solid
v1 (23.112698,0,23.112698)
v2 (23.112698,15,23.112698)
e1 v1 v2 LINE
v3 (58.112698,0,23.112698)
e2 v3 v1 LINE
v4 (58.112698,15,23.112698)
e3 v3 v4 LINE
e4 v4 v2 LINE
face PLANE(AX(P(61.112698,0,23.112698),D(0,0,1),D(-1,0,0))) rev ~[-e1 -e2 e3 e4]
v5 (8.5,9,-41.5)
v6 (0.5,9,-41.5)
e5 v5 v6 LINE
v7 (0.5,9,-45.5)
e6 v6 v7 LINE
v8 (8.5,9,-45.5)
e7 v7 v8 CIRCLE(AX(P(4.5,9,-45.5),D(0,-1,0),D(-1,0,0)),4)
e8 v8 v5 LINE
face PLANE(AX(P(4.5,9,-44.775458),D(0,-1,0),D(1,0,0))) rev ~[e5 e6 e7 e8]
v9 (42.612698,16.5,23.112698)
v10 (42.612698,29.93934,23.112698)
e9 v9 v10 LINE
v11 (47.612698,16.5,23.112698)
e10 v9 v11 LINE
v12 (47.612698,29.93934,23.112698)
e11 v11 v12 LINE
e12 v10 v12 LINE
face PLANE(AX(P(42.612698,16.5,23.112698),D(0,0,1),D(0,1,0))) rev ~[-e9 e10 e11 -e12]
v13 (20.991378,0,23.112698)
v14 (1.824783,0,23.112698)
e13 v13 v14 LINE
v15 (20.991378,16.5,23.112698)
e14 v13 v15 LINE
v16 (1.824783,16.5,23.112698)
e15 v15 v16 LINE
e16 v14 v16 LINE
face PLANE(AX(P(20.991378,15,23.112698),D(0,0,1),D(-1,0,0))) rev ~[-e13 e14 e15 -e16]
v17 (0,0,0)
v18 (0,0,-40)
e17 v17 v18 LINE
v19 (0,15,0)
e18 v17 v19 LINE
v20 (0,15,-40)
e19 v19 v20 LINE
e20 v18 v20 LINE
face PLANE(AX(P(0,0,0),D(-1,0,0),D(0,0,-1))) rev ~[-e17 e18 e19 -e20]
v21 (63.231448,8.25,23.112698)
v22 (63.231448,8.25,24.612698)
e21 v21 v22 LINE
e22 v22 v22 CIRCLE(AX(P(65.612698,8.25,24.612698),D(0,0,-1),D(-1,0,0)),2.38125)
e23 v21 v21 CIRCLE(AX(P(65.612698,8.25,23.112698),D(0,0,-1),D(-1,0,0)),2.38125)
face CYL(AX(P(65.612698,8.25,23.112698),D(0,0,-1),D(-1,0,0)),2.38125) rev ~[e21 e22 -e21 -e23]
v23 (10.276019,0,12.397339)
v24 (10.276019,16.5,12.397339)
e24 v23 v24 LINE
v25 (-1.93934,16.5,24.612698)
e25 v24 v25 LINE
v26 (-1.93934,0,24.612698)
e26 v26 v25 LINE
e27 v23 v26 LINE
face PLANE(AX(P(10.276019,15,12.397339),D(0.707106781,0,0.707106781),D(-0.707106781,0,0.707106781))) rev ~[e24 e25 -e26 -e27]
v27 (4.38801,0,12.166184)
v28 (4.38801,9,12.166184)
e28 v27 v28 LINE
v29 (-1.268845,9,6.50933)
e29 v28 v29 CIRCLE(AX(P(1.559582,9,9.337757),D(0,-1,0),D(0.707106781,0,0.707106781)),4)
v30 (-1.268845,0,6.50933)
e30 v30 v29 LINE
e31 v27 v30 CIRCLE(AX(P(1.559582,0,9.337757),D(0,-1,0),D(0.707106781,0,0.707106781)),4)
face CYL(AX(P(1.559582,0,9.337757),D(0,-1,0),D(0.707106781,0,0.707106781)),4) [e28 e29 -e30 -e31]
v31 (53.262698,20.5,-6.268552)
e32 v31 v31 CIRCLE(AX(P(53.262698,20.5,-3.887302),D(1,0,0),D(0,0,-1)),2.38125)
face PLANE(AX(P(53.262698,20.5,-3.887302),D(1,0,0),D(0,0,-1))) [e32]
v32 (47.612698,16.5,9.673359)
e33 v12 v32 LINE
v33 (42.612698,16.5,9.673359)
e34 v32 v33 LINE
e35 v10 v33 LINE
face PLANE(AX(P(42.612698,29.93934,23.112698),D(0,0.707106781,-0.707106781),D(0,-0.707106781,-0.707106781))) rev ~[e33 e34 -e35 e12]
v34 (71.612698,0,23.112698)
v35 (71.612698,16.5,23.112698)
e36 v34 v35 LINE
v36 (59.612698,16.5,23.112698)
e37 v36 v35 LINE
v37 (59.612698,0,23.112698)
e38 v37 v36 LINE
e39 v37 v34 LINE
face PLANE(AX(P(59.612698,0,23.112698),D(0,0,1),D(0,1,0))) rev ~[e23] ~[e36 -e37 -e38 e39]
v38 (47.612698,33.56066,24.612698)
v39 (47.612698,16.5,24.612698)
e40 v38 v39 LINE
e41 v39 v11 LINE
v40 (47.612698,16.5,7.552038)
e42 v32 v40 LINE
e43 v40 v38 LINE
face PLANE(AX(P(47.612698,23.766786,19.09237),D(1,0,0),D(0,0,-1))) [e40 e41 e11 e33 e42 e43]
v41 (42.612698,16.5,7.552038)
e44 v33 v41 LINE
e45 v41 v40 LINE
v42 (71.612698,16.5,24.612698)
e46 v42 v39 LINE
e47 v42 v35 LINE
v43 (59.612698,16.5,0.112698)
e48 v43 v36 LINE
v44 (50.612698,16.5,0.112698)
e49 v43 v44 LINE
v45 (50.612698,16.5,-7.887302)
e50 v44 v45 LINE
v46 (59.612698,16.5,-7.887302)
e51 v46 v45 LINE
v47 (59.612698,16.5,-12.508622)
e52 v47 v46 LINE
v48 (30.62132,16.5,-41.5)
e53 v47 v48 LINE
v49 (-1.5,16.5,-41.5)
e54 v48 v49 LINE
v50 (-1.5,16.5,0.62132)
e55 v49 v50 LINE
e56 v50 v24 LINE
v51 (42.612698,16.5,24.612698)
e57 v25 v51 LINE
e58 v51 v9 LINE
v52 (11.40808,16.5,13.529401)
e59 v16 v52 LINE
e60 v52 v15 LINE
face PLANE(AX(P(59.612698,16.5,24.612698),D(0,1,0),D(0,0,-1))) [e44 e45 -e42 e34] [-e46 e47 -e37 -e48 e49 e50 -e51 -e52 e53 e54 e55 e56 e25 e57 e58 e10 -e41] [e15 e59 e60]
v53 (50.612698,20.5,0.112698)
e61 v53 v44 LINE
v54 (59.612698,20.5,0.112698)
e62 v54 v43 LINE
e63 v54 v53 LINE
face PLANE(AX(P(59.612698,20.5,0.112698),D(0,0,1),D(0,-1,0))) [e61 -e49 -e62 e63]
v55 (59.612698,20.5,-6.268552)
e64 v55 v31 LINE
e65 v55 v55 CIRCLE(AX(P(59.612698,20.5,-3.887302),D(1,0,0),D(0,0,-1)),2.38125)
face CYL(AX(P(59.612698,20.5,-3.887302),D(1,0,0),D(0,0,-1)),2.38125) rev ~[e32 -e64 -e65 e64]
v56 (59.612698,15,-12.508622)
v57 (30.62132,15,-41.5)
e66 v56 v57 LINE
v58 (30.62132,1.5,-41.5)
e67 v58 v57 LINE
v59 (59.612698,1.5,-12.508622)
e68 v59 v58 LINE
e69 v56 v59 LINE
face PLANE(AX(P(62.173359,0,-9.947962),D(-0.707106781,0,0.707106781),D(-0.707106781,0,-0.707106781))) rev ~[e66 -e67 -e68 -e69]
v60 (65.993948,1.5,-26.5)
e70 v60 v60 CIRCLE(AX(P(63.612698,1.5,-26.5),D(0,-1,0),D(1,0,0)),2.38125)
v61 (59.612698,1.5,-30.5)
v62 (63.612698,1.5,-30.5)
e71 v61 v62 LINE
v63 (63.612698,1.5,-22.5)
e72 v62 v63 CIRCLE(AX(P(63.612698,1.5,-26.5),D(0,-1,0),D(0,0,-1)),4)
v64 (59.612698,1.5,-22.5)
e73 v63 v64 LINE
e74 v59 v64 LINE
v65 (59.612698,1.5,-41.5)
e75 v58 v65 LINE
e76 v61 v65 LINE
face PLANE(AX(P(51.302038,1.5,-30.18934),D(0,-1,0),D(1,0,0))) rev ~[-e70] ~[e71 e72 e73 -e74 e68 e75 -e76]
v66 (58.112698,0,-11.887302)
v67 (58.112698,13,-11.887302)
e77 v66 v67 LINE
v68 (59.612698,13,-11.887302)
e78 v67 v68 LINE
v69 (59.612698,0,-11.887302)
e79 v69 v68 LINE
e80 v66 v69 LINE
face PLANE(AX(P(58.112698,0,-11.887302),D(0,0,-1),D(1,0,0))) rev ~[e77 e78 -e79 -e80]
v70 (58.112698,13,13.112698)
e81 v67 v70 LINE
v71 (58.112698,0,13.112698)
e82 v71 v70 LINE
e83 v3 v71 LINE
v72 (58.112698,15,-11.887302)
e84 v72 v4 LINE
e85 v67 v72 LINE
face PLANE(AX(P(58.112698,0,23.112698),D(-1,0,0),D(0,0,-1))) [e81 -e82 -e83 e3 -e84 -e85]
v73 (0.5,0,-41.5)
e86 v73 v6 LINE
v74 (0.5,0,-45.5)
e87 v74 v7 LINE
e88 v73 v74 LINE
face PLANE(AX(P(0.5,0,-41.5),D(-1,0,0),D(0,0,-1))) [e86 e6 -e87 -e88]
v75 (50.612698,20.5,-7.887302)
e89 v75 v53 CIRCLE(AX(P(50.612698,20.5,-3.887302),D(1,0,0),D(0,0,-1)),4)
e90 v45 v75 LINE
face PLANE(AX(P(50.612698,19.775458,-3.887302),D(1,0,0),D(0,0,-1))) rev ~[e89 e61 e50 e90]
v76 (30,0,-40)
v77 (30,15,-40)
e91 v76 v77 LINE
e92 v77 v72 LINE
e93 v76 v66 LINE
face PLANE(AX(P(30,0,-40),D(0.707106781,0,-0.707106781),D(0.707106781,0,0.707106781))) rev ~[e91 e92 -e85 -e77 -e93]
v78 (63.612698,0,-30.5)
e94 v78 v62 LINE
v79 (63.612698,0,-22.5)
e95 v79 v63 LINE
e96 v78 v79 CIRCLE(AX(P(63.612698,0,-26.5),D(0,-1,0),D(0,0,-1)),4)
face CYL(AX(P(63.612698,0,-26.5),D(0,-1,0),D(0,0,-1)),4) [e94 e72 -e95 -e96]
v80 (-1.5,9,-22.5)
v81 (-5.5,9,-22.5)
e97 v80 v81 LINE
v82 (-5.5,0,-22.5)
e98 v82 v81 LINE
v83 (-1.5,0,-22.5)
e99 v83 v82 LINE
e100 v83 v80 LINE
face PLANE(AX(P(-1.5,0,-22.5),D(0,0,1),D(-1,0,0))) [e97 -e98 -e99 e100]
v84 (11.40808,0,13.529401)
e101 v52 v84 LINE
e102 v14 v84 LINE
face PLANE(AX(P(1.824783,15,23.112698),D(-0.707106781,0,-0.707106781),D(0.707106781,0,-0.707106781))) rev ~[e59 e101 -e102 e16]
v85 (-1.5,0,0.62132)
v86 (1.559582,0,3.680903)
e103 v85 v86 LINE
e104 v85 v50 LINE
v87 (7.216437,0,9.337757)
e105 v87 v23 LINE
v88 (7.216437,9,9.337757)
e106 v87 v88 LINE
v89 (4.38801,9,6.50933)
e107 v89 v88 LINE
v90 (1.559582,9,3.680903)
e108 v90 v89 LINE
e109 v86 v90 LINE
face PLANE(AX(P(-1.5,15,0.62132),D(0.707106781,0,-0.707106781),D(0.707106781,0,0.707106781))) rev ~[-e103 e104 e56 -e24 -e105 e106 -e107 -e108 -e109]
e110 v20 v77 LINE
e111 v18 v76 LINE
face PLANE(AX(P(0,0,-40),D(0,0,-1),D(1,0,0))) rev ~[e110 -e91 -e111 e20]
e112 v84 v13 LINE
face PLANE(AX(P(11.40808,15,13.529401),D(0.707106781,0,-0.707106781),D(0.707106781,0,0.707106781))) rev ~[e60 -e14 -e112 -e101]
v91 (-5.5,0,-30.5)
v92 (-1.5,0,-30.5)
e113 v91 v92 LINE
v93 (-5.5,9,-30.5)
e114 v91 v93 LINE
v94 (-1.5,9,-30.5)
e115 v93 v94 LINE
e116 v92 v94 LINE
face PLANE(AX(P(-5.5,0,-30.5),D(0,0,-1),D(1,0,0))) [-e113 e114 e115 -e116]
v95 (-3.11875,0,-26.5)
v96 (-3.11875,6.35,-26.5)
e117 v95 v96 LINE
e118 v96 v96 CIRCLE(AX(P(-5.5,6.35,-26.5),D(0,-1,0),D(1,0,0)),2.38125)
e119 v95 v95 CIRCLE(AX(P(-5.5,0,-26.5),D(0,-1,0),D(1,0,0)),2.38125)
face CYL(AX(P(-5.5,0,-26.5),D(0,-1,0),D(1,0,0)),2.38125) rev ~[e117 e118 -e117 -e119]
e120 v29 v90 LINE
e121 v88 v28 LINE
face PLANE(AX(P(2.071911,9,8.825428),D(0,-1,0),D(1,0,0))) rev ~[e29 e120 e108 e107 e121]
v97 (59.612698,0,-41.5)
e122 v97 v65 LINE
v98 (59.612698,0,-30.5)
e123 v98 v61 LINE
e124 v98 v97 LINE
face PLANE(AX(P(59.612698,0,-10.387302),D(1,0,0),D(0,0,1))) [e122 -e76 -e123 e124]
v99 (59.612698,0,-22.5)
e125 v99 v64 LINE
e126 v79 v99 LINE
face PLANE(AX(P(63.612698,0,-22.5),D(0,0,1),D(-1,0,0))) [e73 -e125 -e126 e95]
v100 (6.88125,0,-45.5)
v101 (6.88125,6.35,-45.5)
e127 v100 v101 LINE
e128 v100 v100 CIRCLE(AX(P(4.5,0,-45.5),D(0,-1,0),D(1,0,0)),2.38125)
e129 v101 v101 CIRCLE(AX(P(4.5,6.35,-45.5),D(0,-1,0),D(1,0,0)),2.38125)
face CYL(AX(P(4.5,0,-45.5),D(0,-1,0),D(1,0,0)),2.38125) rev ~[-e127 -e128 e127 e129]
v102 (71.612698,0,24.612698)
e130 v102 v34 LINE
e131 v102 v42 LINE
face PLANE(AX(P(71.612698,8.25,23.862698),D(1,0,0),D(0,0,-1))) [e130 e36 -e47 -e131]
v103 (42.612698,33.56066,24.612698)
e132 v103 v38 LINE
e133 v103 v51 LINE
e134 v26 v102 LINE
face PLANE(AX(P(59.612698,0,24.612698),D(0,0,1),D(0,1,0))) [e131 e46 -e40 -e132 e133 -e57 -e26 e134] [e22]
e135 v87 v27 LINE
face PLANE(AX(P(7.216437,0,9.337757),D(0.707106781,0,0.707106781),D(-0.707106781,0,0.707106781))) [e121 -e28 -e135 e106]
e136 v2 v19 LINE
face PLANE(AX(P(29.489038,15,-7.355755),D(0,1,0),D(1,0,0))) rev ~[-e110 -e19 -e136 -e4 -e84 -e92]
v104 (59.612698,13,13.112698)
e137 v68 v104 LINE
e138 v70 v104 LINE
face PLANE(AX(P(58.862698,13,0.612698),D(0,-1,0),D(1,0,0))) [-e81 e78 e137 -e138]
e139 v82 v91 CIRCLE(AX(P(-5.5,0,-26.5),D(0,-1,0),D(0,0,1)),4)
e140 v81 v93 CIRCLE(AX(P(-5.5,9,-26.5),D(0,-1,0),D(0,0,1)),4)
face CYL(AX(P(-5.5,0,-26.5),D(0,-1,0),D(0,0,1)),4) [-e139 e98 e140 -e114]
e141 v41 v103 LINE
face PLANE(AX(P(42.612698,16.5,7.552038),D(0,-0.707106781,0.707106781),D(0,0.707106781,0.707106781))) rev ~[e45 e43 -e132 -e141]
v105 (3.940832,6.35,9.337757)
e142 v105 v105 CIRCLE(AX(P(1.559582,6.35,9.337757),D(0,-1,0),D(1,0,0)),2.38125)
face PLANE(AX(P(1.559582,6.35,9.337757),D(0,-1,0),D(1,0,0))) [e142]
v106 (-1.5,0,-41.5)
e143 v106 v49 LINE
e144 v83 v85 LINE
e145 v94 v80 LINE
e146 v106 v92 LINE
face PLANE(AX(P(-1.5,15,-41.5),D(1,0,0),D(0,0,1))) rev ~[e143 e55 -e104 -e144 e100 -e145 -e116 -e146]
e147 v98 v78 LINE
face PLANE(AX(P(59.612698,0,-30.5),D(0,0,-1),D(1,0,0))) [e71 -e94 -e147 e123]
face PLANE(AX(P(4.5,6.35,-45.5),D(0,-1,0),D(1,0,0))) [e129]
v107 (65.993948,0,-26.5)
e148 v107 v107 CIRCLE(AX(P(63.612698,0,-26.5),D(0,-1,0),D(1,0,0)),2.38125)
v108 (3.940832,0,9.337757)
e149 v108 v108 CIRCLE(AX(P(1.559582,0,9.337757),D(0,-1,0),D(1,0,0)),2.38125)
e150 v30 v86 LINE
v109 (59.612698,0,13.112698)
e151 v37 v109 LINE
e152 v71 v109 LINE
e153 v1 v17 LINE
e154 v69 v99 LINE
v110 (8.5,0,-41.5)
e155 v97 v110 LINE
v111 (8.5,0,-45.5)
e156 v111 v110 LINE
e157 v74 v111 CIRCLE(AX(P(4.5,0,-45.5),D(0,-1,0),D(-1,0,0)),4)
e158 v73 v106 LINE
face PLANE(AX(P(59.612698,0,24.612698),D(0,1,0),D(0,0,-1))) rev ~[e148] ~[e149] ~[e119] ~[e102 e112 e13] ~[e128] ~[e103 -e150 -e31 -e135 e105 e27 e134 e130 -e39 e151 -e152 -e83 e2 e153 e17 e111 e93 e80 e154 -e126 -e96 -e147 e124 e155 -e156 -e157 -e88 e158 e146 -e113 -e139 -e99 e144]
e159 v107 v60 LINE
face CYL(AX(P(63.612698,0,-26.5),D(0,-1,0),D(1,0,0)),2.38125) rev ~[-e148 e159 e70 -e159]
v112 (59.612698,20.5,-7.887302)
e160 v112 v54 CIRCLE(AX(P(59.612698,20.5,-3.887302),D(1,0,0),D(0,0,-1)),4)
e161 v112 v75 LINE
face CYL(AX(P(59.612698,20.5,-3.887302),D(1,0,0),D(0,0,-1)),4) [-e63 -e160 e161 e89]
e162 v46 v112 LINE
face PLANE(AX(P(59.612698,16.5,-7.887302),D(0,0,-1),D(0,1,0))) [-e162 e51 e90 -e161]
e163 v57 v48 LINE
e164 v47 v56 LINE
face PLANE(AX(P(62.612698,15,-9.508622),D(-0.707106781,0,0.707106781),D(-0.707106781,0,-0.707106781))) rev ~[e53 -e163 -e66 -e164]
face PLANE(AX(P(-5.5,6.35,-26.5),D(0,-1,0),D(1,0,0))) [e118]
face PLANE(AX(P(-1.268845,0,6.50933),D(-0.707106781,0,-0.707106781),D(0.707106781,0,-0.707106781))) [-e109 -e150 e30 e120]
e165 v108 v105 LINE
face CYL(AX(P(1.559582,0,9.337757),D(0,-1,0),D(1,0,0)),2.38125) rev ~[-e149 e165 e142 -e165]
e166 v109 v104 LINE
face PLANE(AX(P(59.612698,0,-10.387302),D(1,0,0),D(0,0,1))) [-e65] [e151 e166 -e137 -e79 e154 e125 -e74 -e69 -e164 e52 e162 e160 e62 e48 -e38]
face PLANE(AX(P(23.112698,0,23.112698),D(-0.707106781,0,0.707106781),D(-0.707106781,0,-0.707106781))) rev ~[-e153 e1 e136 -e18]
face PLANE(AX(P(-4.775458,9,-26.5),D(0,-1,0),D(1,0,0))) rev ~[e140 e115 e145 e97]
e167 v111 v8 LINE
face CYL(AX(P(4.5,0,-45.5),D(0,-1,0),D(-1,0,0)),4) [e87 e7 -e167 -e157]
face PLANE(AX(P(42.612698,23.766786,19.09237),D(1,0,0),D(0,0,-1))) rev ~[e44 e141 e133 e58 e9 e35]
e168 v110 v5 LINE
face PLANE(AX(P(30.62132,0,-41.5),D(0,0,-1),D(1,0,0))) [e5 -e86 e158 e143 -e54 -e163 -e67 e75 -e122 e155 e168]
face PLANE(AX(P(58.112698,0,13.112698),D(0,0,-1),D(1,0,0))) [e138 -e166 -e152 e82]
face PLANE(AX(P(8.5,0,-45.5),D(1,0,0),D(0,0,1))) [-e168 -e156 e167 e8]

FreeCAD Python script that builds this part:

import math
import FreeCAD as App
import Part
import Sketcher

V = App.Vector
Q = App.Units.Quantity


def add_polygon(sketch, points):
    """Adds a closed chain of lines whose ends are joined by coincident constraints."""
    first, n = sketch.GeometryCount, len(points)
    for a, b in zip(points, points[1:] + points[:1]):
        sketch.addGeometry(Part.LineSegment(App.Vector(*a, 0), App.Vector(*b, 0)), False)
    for i in range(n):
        sketch.addConstraint(Sketcher.Constraint("Coincident", first + i, 2, first + (i + 1) % n, 1))

doc = App.newDocument("Part")
body = doc.addObject("PartDesign::Body", "Body")

# Sketch on XZ plane
sketch1 = body.newObject("Sketcher::SketchObject", "Sketch")
sketch1.AttachmentSupport = (doc.getObject("XZ_Plane"), [""])
sketch1.MapMode = "FlatFace"
add_polygon(sketch1, [(-1.5, -41.5), (-1.5, 0.6), (10.3, 12.4), (-1.9, 24.6), (62.6, 24.6), (62.6, -9.5), (62.2, -9.9), (30.6, -41.5)])  # lines 0-7
add_polygon(sketch1, [(11.4, 13.5), (21, 23.1), (1.8, 23.1)])  # lines 8-10
add_polygon(sketch1, [(23.1, 23.1), (0, 0), (0, -40), (30, -40), (61.1, -8.9), (61.1, 23.1)])  # lines 11-16
sketch1.addConstraint(Sketcher.Constraint("Vertical", 0))
sketch1.addConstraint(Sketcher.Constraint("Horizontal", 3))
sketch1.addConstraint(Sketcher.Constraint("Vertical", 4))
sketch1.addConstraint(Sketcher.Constraint("Horizontal", 7))
sketch1.addConstraint(Sketcher.Constraint("Horizontal", 9))
sketch1.addConstraint(Sketcher.Constraint("Vertical", 12))
sketch1.addConstraint(Sketcher.Constraint("Horizontal", 13))
sketch1.addConstraint(Sketcher.Constraint("Vertical", 15))
sketch1.addConstraint(Sketcher.Constraint("Horizontal", 16))
sketch1.addConstraint(Sketcher.Constraint("Coincident", 11, 2, -1, 1))
sketch1.addConstraint(Sketcher.Constraint("Perpendicular", 1, 2))
sketch1.addConstraint(Sketcher.Constraint("Perpendicular", 2, 5))
sketch1.addConstraint(Sketcher.Constraint("Parallel", 5, 6))
sketch1.addConstraint(Sketcher.Constraint("Parallel", 6, 8))
sketch1.addConstraint(Sketcher.Constraint("Perpendicular", 8, 10))
sketch1.addConstraint(Sketcher.Constraint("Perpendicular", 10, 11))
sketch1.addConstraint(Sketcher.Constraint("Parallel", 11, 14))
sketch1.addConstraint(Sketcher.Constraint("Horizontal", 9, 2, 15, 2))
sketch1.addConstraint(Sketcher.Constraint("Equal", 8, 10))
sketch1.addConstraint(Sketcher.Constraint("DistanceX", 13, 1, 13, 2, 30.0))
sketch1.addConstraint(Sketcher.Constraint("DistanceX", 16, 2, 16, 1, 38.0))
sketch1.addConstraint(Sketcher.Constraint("DistanceY", 12, 2, 12, 1, 40.0))
sketch1.addConstraint(Sketcher.Constraint("Distance", 14, 44.0))
sketch1.addConstraint(Sketcher.Constraint("DistanceX", 0, 2, -1, 1, 1.5))
sketch1.addConstraint(Sketcher.Constraint("DistanceY", 6, 2, -1, 1, 41.5))
sketch1.addConstraint(Sketcher.Constraint("DistanceY", 8, 2, 2, 2, 1.5))
sketch1.addConstraint(Sketcher.Constraint("DistanceX", 14, 2, 4, 2, 1.5))
sketch1.addConstraint(Sketcher.Constraint("DistanceX", 3, 1, 3, 2, 64.552038))
sketch1.addConstraint(Sketcher.Constraint("DistanceX", 7, 2, 7, 1, 32.12132))
sketch1.addConstraint(Sketcher.Constraint("DistanceY", 0, 1, 0, 2, 42.12132))
sketch1.addConstraint(Sketcher.Constraint("DistanceY", -1, 1, 10, 2, 13.529401))
sketch1.addConstraint(Sketcher.Constraint("DistanceY", 5, 2, 1, 2, 22.345301))
sketch1.addConstraint(Sketcher.Constraint("DistanceX", -1, 1, 8, 2, 20.991378))
pad1 = body.newObject("PartDesign::Pad", "Pad")
pad1.Profile = sketch1
pad1.Length = 15
pad1.Reversed = True

# Sketch on XZ plane
sketch2 = body.newObject("Sketcher::SketchObject", "Sketch001")
sketch2.AttachmentSupport = (doc.getObject("XZ_Plane"), [""])
sketch2.MapMode = "FlatFace"
sketch2.AttachmentOffset = App.Placement(V(0, 0, -15), App.Rotation())
add_polygon(sketch2, [(31, -42), (-2, -42), (-2, 1), (10, 12), (-2, 25), (63, 25), (63, -10)])  # lines 0-6
add_polygon(sketch2, [(11, 14), (21, 23), (2, 23)])  # lines 7-9
sketch2.addConstraint(Sketcher.Constraint("Horizontal", 0))
sketch2.addConstraint(Sketcher.Constraint("Vertical", 1))
sketch2.addConstraint(Sketcher.Constraint("Horizontal", 4))
sketch2.addConstraint(Sketcher.Constraint("Vertical", 5))
sketch2.addConstraint(Sketcher.Constraint("Horizontal", 8))
sketch2.addConstraint(Sketcher.Constraint("Perpendicular", 2, 3))
sketch2.addConstraint(Sketcher.Constraint("Perpendicular", 3, 6))
sketch2.addConstraint(Sketcher.Constraint("Parallel", 6, 7))
sketch2.addConstraint(Sketcher.Constraint("Perpendicular", 7, 9))
sketch2.addConstraint(Sketcher.Constraint("Equal", 7, 9))
sketch2.addConstraint(Sketcher.Constraint("DistanceX", 0, 2, -1, 1, 1.5))
sketch2.addConstraint(Sketcher.Constraint("DistanceY", 0, 2, -1, 1, 41.5))
sketch2.addConstraint(Sketcher.Constraint("DistanceY", 7, 2, 3, 2, 1.5))
sketch2.addConstraint(Sketcher.Constraint("DistanceX", 0, 2, 0, 1, 32.12132))
sketch2.addConstraint(Sketcher.Constraint("DistanceX", 4, 1, 4, 2, 64.552038))
sketch2.addConstraint(Sketcher.Constraint("DistanceY", 1, 1, 1, 2, 42.12132))
sketch2.addConstraint(Sketcher.Constraint("DistanceY", 5, 2, 5, 1, 34.12132))
sketch2.addConstraint(Sketcher.Constraint("DistanceY", -1, 1, 3, 2, 24.612698))
sketch2.addConstraint(Sketcher.Constraint("DistanceY", -1, 1, 9, 2, 13.529401))
sketch2.addConstraint(Sketcher.Constraint("DistanceX", -1, 1, 7, 2, 20.991378))
pad2 = body.newObject("PartDesign::Pad", "Pad001")
pad2.Profile = sketch2
pad2.Length = 1.5
pad2.Reversed = True

# Sketch on YZ plane
sketch3 = body.newObject("Sketcher::SketchObject", "Sketch002")
sketch3.AttachmentSupport = (doc.getObject("YZ_Plane"), [""])
sketch3.MapMode = "FlatFace"
sketch3.AttachmentOffset = App.Placement(V(0, 0, 62.612698), App.Rotation())
add_polygon(sketch3, [(12, 12), (0, 12), (0, -10), (12, -10)])  # lines 0-3
sketch3.addConstraint(Sketcher.Constraint("Horizontal", 0))
sketch3.addConstraint(Sketcher.Constraint("Vertical", 1))
sketch3.addConstraint(Sketcher.Constraint("Horizontal", 2))
sketch3.addConstraint(Sketcher.Constraint("Vertical", 3))
sketch3.addConstraint(Sketcher.Constraint("PointOnObject", 0, 2, -2))
sketch3.addConstraint(Sketcher.Constraint("DistanceX", 0, 2, 0, 1, 12.0))
sketch3.addConstraint(Sketcher.Constraint("DistanceY", 1, 2, 1, 1, 22.0))
sketch3.addConstraint(Sketcher.Constraint("DistanceY", -1, 1, 0, 2, 12.491378))
pad3 = body.newObject("PartDesign::Pad", "Pad002")
pad3.Profile = sketch3
pad3.Length = 10.5

# Sketch on YZ plane
sketch4 = body.newObject("Sketcher::SketchObject", "Sketch003")
sketch4.AttachmentSupport = (doc.getObject("YZ_Plane"), [""])
sketch4.MapMode = "FlatFace"
sketch4.AttachmentOffset = App.Placement(V(0, 0, 61.112698), App.Rotation())
add_polygon(sketch4, [(10, -5), (2, -5), (2, 8), (10, 8)])  # lines 0-3
sketch4.addConstraint(Sketcher.Constraint("Horizontal", 0))
sketch4.addConstraint(Sketcher.Constraint("Vertical", 1))
sketch4.addConstraint(Sketcher.Constraint("Horizontal", 2))
sketch4.addConstraint(Sketcher.Constraint("Vertical", 3))
sketch4.addConstraint(Sketcher.Constraint("DistanceX", 0, 2, 0, 1, 8.5))
sketch4.addConstraint(Sketcher.Constraint("DistanceY", 1, 1, 1, 2, 12.5))
sketch4.addConstraint(Sketcher.Constraint("DistanceX", -1, 1, 0, 2, 2.0))
sketch4.addConstraint(Sketcher.Constraint("DistanceY", 0, 2, -1, 1, 4.887302))
pocket1 = body.newObject("PartDesign::Pocket", "Pocket")
pocket1.Profile = sketch4
pocket1.Length = 4.5
pocket1.Reversed = True

# Sketch on XZ plane
sketch5 = body.newObject("Sketcher::SketchObject", "Sketch004")
sketch5.AttachmentSupport = (doc.getObject("XZ_Plane"), [""])
sketch5.MapMode = "FlatFace"
add_polygon(sketch5, [(63, -10), (31, -42), (63, -42)])  # lines 0-2
sketch5.addConstraint(Sketcher.Constraint("Horizontal", 1))
sketch5.addConstraint(Sketcher.Constraint("Vertical", 2))
sketch5.addConstraint(Sketcher.Constraint("Equal", 1, 2))
sketch5.addConstraint(Sketcher.Constraint("DistanceY", 0, 2, -1, 1, 41.5))
sketch5.addConstraint(Sketcher.Constraint("DistanceX", 1, 1, 1, 2, 31.991378))
sketch5.addConstraint(Sketcher.Constraint("DistanceX", -1, 1, 1, 2, 62.612698))
pad4 = body.newObject("PartDesign::Pad", "Pad003")
pad4.Profile = sketch5
pad4.Length = 1.5
pad4.Reversed = True

# Sketch on YZ plane
sketch6 = body.newObject("Sketcher::SketchObject", "Sketch005")
sketch6.AttachmentSupport = (doc.getObject("YZ_Plane"), [""])
sketch6.MapMode = "FlatFace"
sketch6.AttachmentOffset = App.Placement(V(0, 0, 42.612698), App.Rotation())
add_polygon(sketch6, [(16.5, 7.6), (33.6, 24.6), (16.5, 24.6), (16.5, 23.1), (29.9, 23.1), (15.4, 8.6)])  # lines 0-5
sketch6.addConstraint(Sketcher.Constraint("Horizontal", 1))
sketch6.addConstraint(Sketcher.Constraint("Vertical", 2))
sketch6.addConstraint(Sketcher.Constraint("Horizontal", 3))
sketch6.addConstraint(Sketcher.Constraint("Parallel", 0, 4))
sketch6.addConstraint(Sketcher.Constraint("Perpendicular", 4, 5))
sketch6.addConstraint(Sketcher.Constraint("Vertical", 2, 2, 5, 2))
sketch6.addConstraint(Sketcher.Constraint("Angle", 0, Q("45 deg")))
sketch6.addConstraint(Sketcher.Constraint("DistanceY", 2, 2, 2, 1, 1.5))
sketch6.addConstraint(Sketcher.Constraint("DistanceY", 4, 2, 1, 2, 16.0))
sketch6.addConstraint(Sketcher.Constraint("Distance", 5, 1.5))
sketch6.addConstraint(Sketcher.Constraint("DistanceX", -1, 1, 1, 2, 16.5))
sketch6.addConstraint(Sketcher.Constraint("DistanceY", -1, 1, 0, 2, 24.612698))
pad5 = body.newObject("PartDesign::Pad", "Pad004")
pad5.Profile = sketch6
pad5.Length = 5

# Sketch on XY plane
sketch7 = body.newObject("Sketcher::SketchObject", "Sketch006")
sketch7.AttachmentSupport = (doc.getObject("XY_Plane"), [""])
sketch7.MapMode = "FlatFace"
sketch7.AttachmentOffset = App.Placement(V(0, 0, -9.508622), App.Rotation())
add_polygon(sketch7, [(73, 12), (73, 0), (63, 0), (63, 12)])  # lines 0-3
sketch7.addConstraint(Sketcher.Constraint("Vertical", 0))
sketch7.addConstraint(Sketcher.Constraint("Horizontal", 1))
sketch7.addConstraint(Sketcher.Constraint("Vertical", 2))
sketch7.addConstraint(Sketcher.Constraint("Horizontal", 3))
sketch7.addConstraint(Sketcher.Constraint("PointOnObject", 0, 2, -1))
sketch7.addConstraint(Sketcher.Constraint("DistanceY", 0, 2, 0, 1, 12.0))
sketch7.addConstraint(Sketcher.Constraint("DistanceX", 1, 2, 1, 1, 10.5))
sketch7.addConstraint(Sketcher.Constraint("DistanceX", -1, 1, 0, 2, 73.112698))
pocket2 = body.newObject("PartDesign::Pocket", "Pocket001")
pocket2.Profile = sketch7
pocket2.Type = "ThroughAll"
pocket2.Reversed = True

# Sketch on XZ plane
sketch8 = body.newObject("Sketcher::SketchObject", "Sketch007")
sketch8.AttachmentSupport = (doc.getObject("XZ_Plane"), [""])
sketch8.MapMode = "FlatFace"
add_polygon(sketch8, [(59.6, -10.4), (59.6, 23.1), (58.1, 23.1), (58.1, -11.9)])  # lines 0-3
sketch8.addConstraint(Sketcher.Constraint("Vertical", 0))
sketch8.addConstraint(Sketcher.Constraint("Horizontal", 1))
sketch8.addConstraint(Sketcher.Constraint("Vertical", 2))
sketch8.addConstraint(Sketcher.Constraint("DistanceY", 2, 2, 2, 1, 35.0))
sketch8.addConstraint(Sketcher.Constraint("Angle", 3, Q("45 deg")))
sketch8.addConstraint(Sketcher.Constraint("DistanceX", 1, 2, 1, 1, 1.5))
sketch8.addConstraint(Sketcher.Constraint("DistanceX", -1, 1, 0, 2, 59.612698))
sketch8.addConstraint(Sketcher.Constraint("DistanceY", -1, 1, 0, 2, 23.112698))
pad6 = body.newObject("PartDesign::Pad", "Pad005")
pad6.Profile = sketch8
pad6.Length = 16
pad6.Reversed = True

# Sketch on XZ plane
sketch9 = body.newObject("Sketcher::SketchObject", "Sketch008")
sketch9.AttachmentSupport = (doc.getObject("XZ_Plane"), [""])
sketch9.MapMode = "FlatFace"
add_polygon(sketch9, [(59.6, 24.6), (59.6, -41.5), (62.6, -41.5), (62.6, 24.6)])  # lines 0-3
sketch9.addConstraint(Sketcher.Constraint("Vertical", 0))
sketch9.addConstraint(Sketcher.Constraint("Horizontal", 1))
sketch9.addConstraint(Sketcher.Constraint("Vertical", 2))
sketch9.addConstraint(Sketcher.Constraint("Horizontal", 3))
sketch9.addConstraint(Sketcher.Constraint("DistanceX", 1, 1, 1, 2, 3.0))
sketch9.addConstraint(Sketcher.Constraint("DistanceY", 0, 2, -1, 1, 41.5))
sketch9.addConstraint(Sketcher.Constraint("DistanceY", 0, 2, 0, 1, 66.112698))
sketch9.addConstraint(Sketcher.Constraint("DistanceX", -1, 1, 0, 2, 59.612698))
pocket3 = body.newObject("PartDesign::Pocket", "Pocket002")
pocket3.Profile = sketch9
pocket3.Type = "ThroughAll"

# Sketch on XZ plane
sketch10 = body.newObject("Sketcher::SketchObject", "Sketch009")
sketch10.AttachmentSupport = (doc.getObject("XZ_Plane"), [""])
sketch10.MapMode = "FlatFace"
add_polygon(sketch10, [(58.1, 13.1), (58.1, -11.9), (59.6, -11.9), (59.6, 13.1)])  # lines 0-3
sketch10.addConstraint(Sketcher.Constraint("Vertical", 0))
sketch10.addConstraint(Sketcher.Constraint("Horizontal", 1))
sketch10.addConstraint(Sketcher.Constraint("Vertical", 2))
sketch10.addConstraint(Sketcher.Constraint("Horizontal", 3))
sketch10.addConstraint(Sketcher.Constraint("DistanceY", 0, 2, 0, 1, 25.0))
sketch10.addConstraint(Sketcher.Constraint("DistanceX", 1, 1, 1, 2, 1.5))
sketch10.addConstraint(Sketcher.Constraint("DistanceX", -1, 1, 0, 2, 58.112698))
sketch10.addConstraint(Sketcher.Constraint("DistanceY", 0, 2, -1, 1, 11.887302))
pocket4 = body.newObject("PartDesign::Pocket", "Pocket003")
pocket4.Profile = sketch10
pocket4.Length = 13

# Sketch on YZ plane
sketch11 = body.newObject("Sketcher::SketchObject", "Sketch010")
sketch11.AttachmentSupport = (doc.getObject("YZ_Plane"), [""])
sketch11.MapMode = "FlatFace"
sketch11.AttachmentOffset = App.Placement(V(0, 0, 59.612698), App.Rotation())
add_polygon(sketch11, [(16.5, 24.6), (0, 24.6), (0, 23.1), (16.5, 23.1)])  # lines 0-3
sketch11.addConstraint(Sketcher.Constraint("Horizontal", 0))
sketch11.addConstraint(Sketcher.Constraint("Vertical", 1))
sketch11.addConstraint(Sketcher.Constraint("Horizontal", 2))
sketch11.addConstraint(Sketcher.Constraint("Vertical", 3))
sketch11.addConstraint(Sketcher.Constraint("PointOnObject", 0, 2, -2))
sketch11.addConstraint(Sketcher.Constraint("DistanceX", 0, 2, 0, 1, 16.5))
sketch11.addConstraint(Sketcher.Constraint("DistanceY", 1, 2, 1, 1, 1.5))
sketch11.addConstraint(Sketcher.Constraint("DistanceY", -1, 1, 0, 2, 24.612698))
pad7 = body.newObject("PartDesign::Pad", "Pad006")
pad7.Profile = sketch11
pad7.Length = 12

# Sketch on YZ plane
sketch12 = body.newObject("Sketcher::SketchObject", "Sketch011")
sketch12.AttachmentSupport = (doc.getObject("YZ_Plane"), [""])
sketch12.MapMode = "FlatFace"
sketch12.AttachmentOffset = App.Placement(V(0, 0, 59.612698), App.Rotation())
sketch12.addGeometry(Part.LineSegment(V(20.5, 0.1, 0), V(16.5, 0.1, 0)), False)
sketch12.addGeometry(Part.LineSegment(V(16.5, 0.1, 0), V(16.5, -7.9, 0)), False)
sketch12.addGeometry(Part.LineSegment(V(16.5, -7.9, 0), V(20.5, -7.9, 0)), False)
sketch12.addGeometry(Part.ArcOfCircle(Part.Circle(V(20.5, -3.9, 0), V(0, 0, 1), 4), math.radians(-90), math.radians(90)), False)
sketch12.addConstraint(Sketcher.Constraint("Coincident", 0, 2, 1, 1))
sketch12.addConstraint(Sketcher.Constraint("Coincident", 1, 2, 2, 1))
sketch12.addConstraint(Sketcher.Constraint("Tangent", 2, 2, 3, 1))
sketch12.addConstraint(Sketcher.Constraint("Tangent", 3, 2, 0, 1))
sketch12.addConstraint(Sketcher.Constraint("Horizontal", 0))
sketch12.addConstraint(Sketcher.Constraint("Vertical", 1))
sketch12.addConstraint(Sketcher.Constraint("Horizontal", 2))
sketch12.addConstraint(Sketcher.Constraint("Radius", 3, 4.0))
sketch12.addConstraint(Sketcher.Constraint("DistanceX", 0, 2, 0, 1, 4.0))
sketch12.addConstraint(Sketcher.Constraint("DistanceX", -1, 1, 3, 3, 20.5))
sketch12.addConstraint(Sketcher.Constraint("DistanceY", 3, 3, -1, 1, 3.887302))
pad8 = body.newObject("PartDesign::Pad", "Pad007")
pad8.Profile = sketch12
pad8.Length = 9
pad8.Reversed = True

# Sketch on YZ plane
sketch13 = body.newObject("Sketcher::SketchObject", "Sketch012")
sketch13.AttachmentSupport = (doc.getObject("YZ_Plane"), [""])
sketch13.MapMode = "FlatFace"
sketch13.AttachmentOffset = App.Placement(V(0, 0, 59.612698), App.Rotation())
sketch13.addGeometry(Part.Circle(V(20.5, -3.9, 0), V(0, 0, 1), 2.4), False)
sketch13.addConstraint(Sketcher.Constraint("Diameter", 0, 4.7625))
sketch13.addConstraint(Sketcher.Constraint("DistanceX", -1, 1, 0, 3, 20.5))
sketch13.addConstraint(Sketcher.Constraint("DistanceY", 0, 3, -1, 1, 3.887302))
pocket5 = body.newObject("PartDesign::Pocket", "Pocket004")
pocket5.Profile = sketch13
pocket5.Length = 6.35

# Sketch on XY plane
sketch14 = body.newObject("Sketcher::SketchObject", "Sketch013")
sketch14.AttachmentSupport = (doc.getObject("XY_Plane"), [""])
sketch14.MapMode = "FlatFace"
sketch14.AttachmentOffset = App.Placement(V(0, 0, 23.112698), App.Rotation())
sketch14.addGeometry(Part.Circle(V(65.6, 8.2, 0), V(0, 0, 1), 2.4), False)
sketch14.addConstraint(Sketcher.Constraint("Diameter", 0, 4.7625))
sketch14.addConstraint(Sketcher.Constraint("DistanceY", -1, 1, 0, 3, 8.25))
sketch14.addConstraint(Sketcher.Constraint("DistanceX", -1, 1, 0, 3, 65.612698))
pocket6 = body.newObject("PartDesign::Pocket", "Pocket005")
pocket6.Profile = sketch14
pocket6.Type = "ThroughAll"
pocket6.Reversed = True

# Sketch on XZ plane
sketch15 = body.newObject("Sketcher::SketchObject", "Sketch014")
sketch15.AttachmentSupport = (doc.getObject("XZ_Plane"), [""])
sketch15.MapMode = "FlatFace"
sketch15.addGeometry(Part.LineSegment(V(0.5, -41.5, 0), V(0.5, -45.5, 0)), False)
sketch15.addGeometry(Part.ArcOfCircle(Part.Circle(V(4.5, -45.5, 0), V(0, 0, 1), 4), math.radians(180), math.radians(360)), False)
sketch15.addGeometry(Part.LineSegment(V(8.5, -45.5, 0), V(8.5, -41.5, 0)), False)
sketch15.addGeometry(Part.LineSegment(V(8.5, -41.5, 0), V(0.5, -41.5, 0)), False)
sketch15.addConstraint(Sketcher.Constraint("Tangent", 0, 2, 1, 1))
sketch15.addConstraint(Sketcher.Constraint("Tangent", 1, 2, 2, 1))
sketch15.addConstraint(Sketcher.Constraint("Coincident", 2, 2, 3, 1))
sketch15.addConstraint(Sketcher.Constraint("Coincident", 3, 2, 0, 1))
sketch15.addConstraint(Sketcher.Constraint("Vertical", 0))
sketch15.addConstraint(Sketcher.Constraint("Vertical", 2))
sketch15.addConstraint(Sketcher.Constraint("Horizontal", 3))
sketch15.addConstraint(Sketcher.Constraint("Radius", 1, 4.0))
sketch15.addConstraint(Sketcher.Constraint("DistanceY", 0, 2, 0, 1, 4.0))
sketch15.addConstraint(Sketcher.Constraint("DistanceX", -1, 1, 1, 3, 4.5))
sketch15.addConstraint(Sketcher.Constraint("DistanceY", 1, 3, -1, 1, 45.5))
pad9 = body.newObject("PartDesign::Pad", "Pad008")
pad9.Profile = sketch15
pad9.Length = 9
pad9.Reversed = True

# Sketch on XZ plane
sketch16 = body.newObject("Sketcher::SketchObject", "Sketch015")
sketch16.AttachmentSupport = (doc.getObject("XZ_Plane"), [""])
sketch16.MapMode = "FlatFace"
sketch16.addGeometry(Part.LineSegment(V(-5.5, -30.5, 0), V(-1.5, -30.5, 0)), False)
sketch16.addGeometry(Part.LineSegment(V(-1.5, -30.5, 0), V(-1.5, -22.5, 0)), False)
sketch16.addGeometry(Part.LineSegment(V(-1.5, -22.5, 0), V(-5.5, -22.5, 0)), False)
sketch16.addGeometry(Part.ArcOfCircle(Part.Circle(V(-5.5, -26.5, 0), V(0, 0, 1), 4), math.radians(90), math.radians(270)), False)
sketch16.addConstraint(Sketcher.Constraint("Coincident", 0, 2, 1, 1))
sketch16.addConstraint(Sketcher.Constraint("Coincident", 1, 2, 2, 1))
sketch16.addConstraint(Sketcher.Constraint("Tangent", 2, 2, 3, 1))
sketch16.addConstraint(Sketcher.Constraint("Tangent", 3, 2, 0, 1))
sketch16.addConstraint(Sketcher.Constraint("Horizontal", 0))
sketch16.addConstraint(Sketcher.Constraint("Vertical", 1))
sketch16.addConstraint(Sketcher.Constraint("Horizontal", 2))
sketch16.addConstraint(Sketcher.Constraint("Radius", 3, 4.0))
sketch16.addConstraint(Sketcher.Constraint("DistanceX", 0, 1, 0, 2, 4.0))
sketch16.addConstraint(Sketcher.Constraint("DistanceX", 3, 3, -1, 1, 5.5))
sketch16.addConstraint(Sketcher.Constraint("DistanceY", 3, 3, -1, 1, 26.5))
pad10 = body.newObject("PartDesign::Pad", "Pad009")
pad10.Profile = sketch16
pad10.Length = 9
pad10.Reversed = True

# Sketch on XZ plane
sketch17 = body.newObject("Sketcher::SketchObject", "Sketch016")
sketch17.AttachmentSupport = (doc.getObject("XZ_Plane"), [""])
sketch17.MapMode = "FlatFace"
sketch17.addGeometry(Part.LineSegment(V(-1.3, 6.5, 0), V(1.6, 3.7, 0)), False)
sketch17.addGeometry(Part.LineSegment(V(1.6, 3.7, 0), V(4.4, 6.5, 0)), False)
sketch17.addGeometry(Part.LineSegment(V(4.4, 6.5, 0), V(7.2, 9.3, 0)), False)
sketch17.addGeometry(Part.LineSegment(V(7.2, 9.3, 0), V(4.4, 12.2, 0)), False)
sketch17.addGeometry(Part.ArcOfCircle(Part.Circle(V(1.6, 9.3, 0), V(0, 0, 1), 4), math.radians(45), math.radians(225)), False)
sketch17.addConstraint(Sketcher.Constraint("Coincident", 0, 2, 1, 1))
sketch17.addConstraint(Sketcher.Constraint("Coincident", 1, 2, 2, 1))
sketch17.addConstraint(Sketcher.Constraint("Coincident", 2, 2, 3, 1))
sketch17.addConstraint(Sketcher.Constraint("Tangent", 3, 2, 4, 1))
sketch17.addConstraint(Sketcher.Constraint("Tangent", 4, 2, 0, 1))
sketch17.addConstraint(Sketcher.Constraint("Perpendicular", 0, 1))
sketch17.addConstraint(Sketcher.Constraint("Parallel", 1, 2))
sketch17.addConstraint(Sketcher.Constraint("Perpendicular", 2, 3))
sketch17.addConstraint(Sketcher.Constraint("Horizontal", 4, 3, 2, 2))
sketch17.addConstraint(Sketcher.Constraint("Horizontal", 1, 2, 4, 2))
sketch17.addConstraint(Sketcher.Constraint("Vertical", 4, 3, 0, 2))
sketch17.addConstraint(Sketcher.Constraint("Radius", 4, 4.0))
sketch17.addConstraint(Sketcher.Constraint("DistanceX", -1, 1, 1, 2, 4.38801))
sketch17.addConstraint(Sketcher.Constraint("DistanceY", -1, 1, 1, 2, 6.50933))
pad11 = body.newObject("PartDesign::Pad", "Pad010")
pad11.Profile = sketch17
pad11.Length = 9
pad11.Reversed = True

# Sketch on XZ plane
sketch18 = body.newObject("Sketcher::SketchObject", "Sketch017")
sketch18.AttachmentSupport = (doc.getObject("XZ_Plane"), [""])
sketch18.MapMode = "FlatFace"
sketch18.addGeometry(Part.LineSegment(V(59.6, -30.5, 0), V(63.6, -30.5, 0)), False)
sketch18.addGeometry(Part.ArcOfCircle(Part.Circle(V(63.6, -26.5, 0), V(0, 0, 1), 4), math.radians(-90), math.radians(90)), False)
sketch18.addGeometry(Part.LineSegment(V(63.6, -22.5, 0), V(59.6, -22.5, 0)), False)
sketch18.addGeometry(Part.LineSegment(V(59.6, -22.5, 0), V(59.6, -30.5, 0)), False)
sketch18.addConstraint(Sketcher.Constraint("Tangent", 0, 2, 1, 1))
sketch18.addConstraint(Sketcher.Constraint("Tangent", 1, 2, 2, 1))
sketch18.addConstraint(Sketcher.Constraint("Coincident", 2, 2, 3, 1))
sketch18.addConstraint(Sketcher.Constraint("Coincident", 3, 2, 0, 1))
sketch18.addConstraint(Sketcher.Constraint("Horizontal", 0))
sketch18.addConstraint(Sketcher.Constraint("Horizontal", 2))
sketch18.addConstraint(Sketcher.Constraint("Vertical", 3))
sketch18.addConstraint(Sketcher.Constraint("Radius", 1, 4.0))
sketch18.addConstraint(Sketcher.Constraint("DistanceX", 0, 1, 0, 2, 4.0))
sketch18.addConstraint(Sketcher.Constraint("DistanceY", 1, 3, -1, 1, 26.5))
sketch18.addConstraint(Sketcher.Constraint("DistanceX", -1, 1, 1, 3, 63.612698))
pad12 = body.newObject("PartDesign::Pad", "Pad011")
pad12.Profile = sketch18
pad12.Length = 1.5
pad12.Reversed = True

# Sketch on XZ plane
sketch19 = body.newObject("Sketcher::SketchObject", "Sketch018")
sketch19.AttachmentSupport = (doc.getObject("XZ_Plane"), [""])
sketch19.MapMode = "FlatFace"
sketch19.addGeometry(Part.Circle(V(63.6, -26.5, 0), V(0, 0, 1), 2.4), False)
sketch19.addConstraint(Sketcher.Constraint("Diameter", 0, 4.7625))
sketch19.addConstraint(Sketcher.Constraint("DistanceY", 0, 3, -1, 1, 26.5))
sketch19.addConstraint(Sketcher.Constraint("DistanceX", -1, 1, 0, 3, 63.612698))
pocket7 = body.newObject("PartDesign::Pocket", "Pocket006")
pocket7.Profile = sketch19
pocket7.Type = "ThroughAll"

# Sketch on XZ plane
sketch20 = body.newObject("Sketcher::SketchObject", "Sketch019")
sketch20.AttachmentSupport = (doc.getObject("XZ_Plane"), [""])
sketch20.MapMode = "FlatFace"
sketch20.addGeometry(Part.Circle(V(4.5, -45.5, 0), V(0, 0, 1), 2.4), False)
sketch20.addGeometry(Part.Circle(V(-5.5, -26.5, 0), V(0, 0, 1), 2.4), False)
sketch20.addGeometry(Part.Circle(V(1.6, 9.3, 0), V(0, 0, 1), 2.4), False)
sketch20.addConstraint(Sketcher.Constraint("Equal", 0, 1))
sketch20.addConstraint(Sketcher.Constraint("Equal", 1, 2))
sketch20.addConstraint(Sketcher.Constraint("DistanceX", 1, 3, 0, 3, 10.0))
sketch20.addConstraint(Sketcher.Constraint("DistanceY", 0, 3, 1, 3, 19.0))
sketch20.addConstraint(Sketcher.Constraint("Diameter", 0, 4.7625))
sketch20.addConstraint(Sketcher.Constraint("DistanceX", -1, 1, 0, 3, 4.5))
sketch20.addConstraint(Sketcher.Constraint("DistanceY", 0, 3, -1, 1, 45.5))
sketch20.addConstraint(Sketcher.Constraint("DistanceX", -1, 1, 2, 3, 1.559582))
sketch20.addConstraint(Sketcher.Constraint("DistanceY", -1, 1, 2, 3, 9.337757))
pocket8 = body.newObject("PartDesign::Pocket", "Pocket007")
pocket8.Profile = sketch20
pocket8.Length = 6.35

doc.recompute()
